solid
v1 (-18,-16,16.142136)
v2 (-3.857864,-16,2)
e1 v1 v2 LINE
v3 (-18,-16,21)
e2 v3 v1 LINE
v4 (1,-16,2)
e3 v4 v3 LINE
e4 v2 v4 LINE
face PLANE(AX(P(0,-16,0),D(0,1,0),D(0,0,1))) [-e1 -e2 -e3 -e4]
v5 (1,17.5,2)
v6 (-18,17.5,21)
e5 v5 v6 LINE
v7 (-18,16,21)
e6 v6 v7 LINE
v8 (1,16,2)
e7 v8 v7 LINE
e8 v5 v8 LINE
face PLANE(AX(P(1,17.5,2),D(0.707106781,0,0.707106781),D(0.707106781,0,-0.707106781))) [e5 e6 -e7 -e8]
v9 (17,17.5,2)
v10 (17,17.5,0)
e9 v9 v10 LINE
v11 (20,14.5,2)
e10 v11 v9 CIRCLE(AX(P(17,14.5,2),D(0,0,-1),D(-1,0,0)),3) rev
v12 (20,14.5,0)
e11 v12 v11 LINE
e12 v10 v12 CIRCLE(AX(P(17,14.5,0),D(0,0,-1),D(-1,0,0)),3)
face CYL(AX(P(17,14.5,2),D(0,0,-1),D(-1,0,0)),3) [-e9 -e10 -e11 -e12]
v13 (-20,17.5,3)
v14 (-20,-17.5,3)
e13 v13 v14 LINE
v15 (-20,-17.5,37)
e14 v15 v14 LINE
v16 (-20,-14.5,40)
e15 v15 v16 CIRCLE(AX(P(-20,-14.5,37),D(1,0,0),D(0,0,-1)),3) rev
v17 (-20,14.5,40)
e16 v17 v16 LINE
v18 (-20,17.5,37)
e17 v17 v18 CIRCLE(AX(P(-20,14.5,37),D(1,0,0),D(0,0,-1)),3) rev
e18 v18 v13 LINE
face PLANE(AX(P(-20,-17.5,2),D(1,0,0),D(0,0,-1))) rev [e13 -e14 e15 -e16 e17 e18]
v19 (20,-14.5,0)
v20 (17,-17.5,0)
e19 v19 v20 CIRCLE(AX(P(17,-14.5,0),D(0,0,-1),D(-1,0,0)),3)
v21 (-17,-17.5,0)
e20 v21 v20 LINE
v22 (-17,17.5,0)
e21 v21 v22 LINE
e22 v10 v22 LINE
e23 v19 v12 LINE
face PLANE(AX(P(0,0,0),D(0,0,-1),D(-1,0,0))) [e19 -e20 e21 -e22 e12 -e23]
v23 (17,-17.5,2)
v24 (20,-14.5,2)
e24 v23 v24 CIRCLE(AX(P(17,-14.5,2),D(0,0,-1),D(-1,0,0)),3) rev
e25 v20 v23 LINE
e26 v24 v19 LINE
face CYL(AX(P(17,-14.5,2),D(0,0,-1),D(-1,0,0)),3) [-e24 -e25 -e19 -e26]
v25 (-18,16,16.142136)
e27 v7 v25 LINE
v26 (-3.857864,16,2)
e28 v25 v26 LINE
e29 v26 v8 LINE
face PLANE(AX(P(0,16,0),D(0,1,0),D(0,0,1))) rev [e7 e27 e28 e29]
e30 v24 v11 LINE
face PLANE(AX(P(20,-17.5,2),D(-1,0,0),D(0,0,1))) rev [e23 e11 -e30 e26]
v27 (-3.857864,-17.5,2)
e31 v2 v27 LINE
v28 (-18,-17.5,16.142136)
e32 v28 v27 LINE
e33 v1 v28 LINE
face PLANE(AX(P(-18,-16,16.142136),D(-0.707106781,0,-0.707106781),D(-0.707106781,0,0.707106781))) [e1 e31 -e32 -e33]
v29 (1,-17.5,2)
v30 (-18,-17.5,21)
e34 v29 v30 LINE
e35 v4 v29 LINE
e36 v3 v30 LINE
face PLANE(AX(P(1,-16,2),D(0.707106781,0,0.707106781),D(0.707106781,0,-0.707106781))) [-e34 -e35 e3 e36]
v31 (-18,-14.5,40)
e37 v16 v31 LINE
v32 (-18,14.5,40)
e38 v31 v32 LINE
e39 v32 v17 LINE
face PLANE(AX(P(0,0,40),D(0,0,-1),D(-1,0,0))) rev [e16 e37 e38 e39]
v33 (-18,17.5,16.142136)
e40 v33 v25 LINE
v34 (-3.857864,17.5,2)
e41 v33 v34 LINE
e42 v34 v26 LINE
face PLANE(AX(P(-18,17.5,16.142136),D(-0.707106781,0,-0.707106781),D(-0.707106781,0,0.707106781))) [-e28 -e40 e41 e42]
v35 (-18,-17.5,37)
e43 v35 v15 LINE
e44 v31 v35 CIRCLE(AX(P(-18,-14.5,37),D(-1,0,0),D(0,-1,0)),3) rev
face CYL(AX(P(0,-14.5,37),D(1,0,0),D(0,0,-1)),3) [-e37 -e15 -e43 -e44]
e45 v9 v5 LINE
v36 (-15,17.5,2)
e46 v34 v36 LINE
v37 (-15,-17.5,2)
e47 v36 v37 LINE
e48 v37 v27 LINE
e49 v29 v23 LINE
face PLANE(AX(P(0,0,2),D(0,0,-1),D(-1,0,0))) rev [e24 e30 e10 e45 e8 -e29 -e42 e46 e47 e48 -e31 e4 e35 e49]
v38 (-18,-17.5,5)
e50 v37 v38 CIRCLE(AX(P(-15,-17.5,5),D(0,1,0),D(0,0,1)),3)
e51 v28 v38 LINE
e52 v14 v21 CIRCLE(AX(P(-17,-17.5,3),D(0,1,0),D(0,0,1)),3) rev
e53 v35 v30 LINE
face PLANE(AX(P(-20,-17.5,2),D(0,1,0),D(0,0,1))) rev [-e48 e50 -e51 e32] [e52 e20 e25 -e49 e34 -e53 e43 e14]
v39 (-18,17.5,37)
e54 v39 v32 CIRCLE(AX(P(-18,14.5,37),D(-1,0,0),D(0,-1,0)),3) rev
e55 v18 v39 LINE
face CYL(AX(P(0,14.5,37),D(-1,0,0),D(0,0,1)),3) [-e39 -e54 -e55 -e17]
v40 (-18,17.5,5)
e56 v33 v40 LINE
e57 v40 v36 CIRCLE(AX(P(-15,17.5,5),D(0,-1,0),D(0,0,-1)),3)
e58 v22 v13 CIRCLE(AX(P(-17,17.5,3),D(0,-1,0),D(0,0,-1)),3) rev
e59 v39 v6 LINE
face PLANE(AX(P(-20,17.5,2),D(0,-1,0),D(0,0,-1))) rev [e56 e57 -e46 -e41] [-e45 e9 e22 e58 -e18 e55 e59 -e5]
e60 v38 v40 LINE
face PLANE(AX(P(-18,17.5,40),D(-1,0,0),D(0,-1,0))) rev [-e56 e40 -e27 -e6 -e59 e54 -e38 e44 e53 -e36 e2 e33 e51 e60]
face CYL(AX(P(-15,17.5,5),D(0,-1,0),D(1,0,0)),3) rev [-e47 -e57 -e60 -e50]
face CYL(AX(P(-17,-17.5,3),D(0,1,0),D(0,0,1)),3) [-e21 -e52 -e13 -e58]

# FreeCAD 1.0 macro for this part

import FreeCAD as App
import Part
import Sketcher
from FreeCAD import Vector


def edges_at(feature, points):
    """Names of the edges that pass closest to the given points."""
    edges = feature.Shape.Edges
    near = lambda p: min(range(len(edges)), key=lambda i: edges[i].distToShape(Part.Vertex(*p))[0])
    return sorted({f"Edge{near(p) + 1}" for p in points})


def add_polygon(sketch, points):
    """Adds a closed chain of lines whose ends are joined by coincident constraints."""
    first, n = sketch.GeometryCount, len(points)
    for a, b in zip(points, points[1:] + points[:1]):
        sketch.addGeometry(Part.LineSegment(App.Vector(*a, 0), App.Vector(*b, 0)), False)
    for i in range(n):
        sketch.addConstraint(Sketcher.Constraint("Coincident", first + i, 2, first + (i + 1) % n, 1))

doc = App.newDocument("Part")
body = doc.addObject("PartDesign::Body", "Body")

# Sketch on XY plane
sketch1 = doc.addObject("Sketcher::SketchObject", "Sketch")
body.addObject(sketch1)
sketch1.AttachmentSupport = (doc.XY_Plane, [""])
sketch1.MapMode = "FlatFace"
add_polygon(sketch1, [(-20, 18), (-20, -18), (20, -18), (20, 18)])  # lines 0-3
sketch1.addConstraint([
    Sketcher.Constraint("Vertical", 0),
    Sketcher.Constraint("Horizontal", 1),
    Sketcher.Constraint("Vertical", 2),
    Sketcher.Constraint("Horizontal", 3),
    Sketcher.Constraint("Symmetric", 0, 2, 2, 2, -1, 1),
    Sketcher.Constraint("DistanceX", 1, 1, 1, 2, 40.0),
    Sketcher.Constraint("DistanceY", 0, 2, 0, 1, 35.0),
])
pad1 = doc.addObject("PartDesign::Pad", "Pad")
body.addObject(pad1)
pad1.Profile = sketch1
pad1.Length = 2

# Sketch on XY plane
sketch2 = doc.addObject("Sketcher::SketchObject", "Sketch001")
body.addObject(sketch2)
sketch2.AttachmentSupport = (doc.XY_Plane, [""])
sketch2.MapMode = "FlatFace"
sketch2.AttachmentOffset = App.Placement(Vector(0, 0, 2), App.Rotation())
add_polygon(sketch2, [(-20, 17.5), (-20, -17.5), (-18, -17.5), (-18, 17.5)])  # lines 0-3
sketch2.addConstraint([
    Sketcher.Constraint("Vertical", 0),
    Sketcher.Constraint("Horizontal", 1),
    Sketcher.Constraint("Vertical", 2),
    Sketcher.Constraint("Horizontal", 3),
    Sketcher.Constraint("DistanceX", 1, 1, 1, 2, 2.0),
    Sketcher.Constraint("DistanceY", 0, 2, 0, 1, 35.0),
    Sketcher.Constraint("DistanceX", 0, 2, -1, 1, 20.0),
    Sketcher.Constraint("DistanceY", 0, 2, -1, 1, 17.5),
])
pad2 = doc.addObject("PartDesign::Pad", "Pad001")
body.addObject(pad2)
pad2.Profile = sketch2
pad2.Length = 38
doc.recompute()

fillet = doc.addObject("PartDesign::Fillet", "Fillet")
body.addObject(fillet)
fillet.Base = (pad2, edges_at(pad2, [
    (-18, 0, 2),
    (-19, 17.5, 40),
    (-19, -17.5, 40),
    (-20, 0, 0),
    (20, -17.5, 1),
    (20, 17.5, 1),
]))
fillet.Radius = 3

# Sketch on XZ plane
sketch3 = doc.addObject("Sketcher::SketchObject", "Sketch002")
body.addObject(sketch3)
sketch3.AttachmentSupport = (doc.XZ_Plane, [""])
sketch3.MapMode = "FlatFace"
sketch3.AttachmentOffset = App.Placement(Vector(0, 0, 17.5), App.Rotation())
add_polygon(sketch3, [(1, 2), (-18, 21), (-18, 16.1), (-3.9, 2)])  # lines 0-3
sketch3.addConstraint([
    Sketcher.Constraint("Vertical", 1),
    Sketcher.Constraint("Horizontal", 3),
    Sketcher.Constraint("Parallel", 0, 2),
    Sketcher.Constraint("Equal", 3, 1),
    Sketcher.Constraint("Distance", 2, 20.0),
    Sketcher.Constraint("DistanceX", 0, 2, -1, 1, 18.0),
    Sketcher.Constraint("DistanceY", -1, 1, 0, 2, 21.0),
    Sketcher.Constraint("DistanceY", -1, 1, 2, 2, 2.0),
])
pad3 = doc.addObject("PartDesign::Pad", "Pad002")
body.addObject(pad3)
pad3.Profile = sketch3
pad3.Length = 1.5
pad3.Reversed = True

# Sketch on XZ plane
sketch4 = doc.addObject("Sketcher::SketchObject", "Sketch003")
body.addObject(sketch4)
sketch4.AttachmentSupport = (doc.XZ_Plane, [""])
sketch4.MapMode = "FlatFace"
sketch4.AttachmentOffset = App.Placement(Vector(0, 0, -16), App.Rotation())
add_polygon(sketch4, [(1, 2), (-18, 21), (-18, 16.1), (-3.9, 2)])  # lines 0-3
sketch4.addConstraint([
    Sketcher.Constraint("Vertical", 1),
    Sketcher.Constraint("Horizontal", 3),
    Sketcher.Constraint("Parallel", 0, 2),
    Sketcher.Constraint("Equal", 3, 1),
    Sketcher.Constraint("Distance", 2, 20.0),
    Sketcher.Constraint("DistanceX", 0, 2, -1, 1, 18.0),
    Sketcher.Constraint("DistanceY", -1, 1, 0, 2, 21.0),
    Sketcher.Constraint("DistanceY", -1, 1, 2, 2, 2.0),
])
pad4 = doc.addObject("PartDesign::Pad", "Pad003")
body.addObject(pad4)
pad4.Profile = sketch4
pad4.Length = 1.5
pad4.Reversed = True

doc.recompute()
